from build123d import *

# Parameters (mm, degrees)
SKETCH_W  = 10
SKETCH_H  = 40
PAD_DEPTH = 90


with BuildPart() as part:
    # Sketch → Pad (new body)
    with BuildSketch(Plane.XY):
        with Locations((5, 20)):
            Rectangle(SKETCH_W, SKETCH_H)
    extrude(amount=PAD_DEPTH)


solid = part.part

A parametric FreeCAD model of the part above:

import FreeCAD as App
import Part
import Sketcher
from FreeCAD import Vector
Q = App.Units.Quantity


def add_polygon(sketch, points):
    """Adds a closed chain of lines whose ends are joined by coincident constraints."""
    first, n = sketch.GeometryCount, len(points)
    for a, b in zip(points, points[1:] + points[:1]):
        sketch.addGeometry(Part.LineSegment(App.Vector(*a, 0), App.Vector(*b, 0)), False)
    for i in range(n):
        sketch.addConstraint(Sketcher.Constraint("Coincident", first + i, 2, first + (i + 1) % n, 1))

doc = App.newDocument("Part")
body = doc.addObject("PartDesign::Body", "Body")

# Sketch on XY plane
sketch1 = body.newObject("Sketcher::SketchObject", "Sketch")
sketch1.AttachmentSupport = (doc.getObject("XY_Plane"), [""])
sketch1.MapMode = "FlatFace"
add_polygon(sketch1, [(0, 40), (0, 0), (10, 0), (10, 40)])  # lines 0-3
sketch1.addConstraint([
    Sketcher.Constraint("Vertical", 0),
    Sketcher.Constraint("Horizontal", 1),
    Sketcher.Constraint("Vertical", 2),
    Sketcher.Constraint("Horizontal", 3),
    Sketcher.Constraint("Coincident", 0, 2, -1, 1),
    Sketcher.Constraint("DistanceX", 1, 1, 1, 2, Q("10 mm")),
    Sketcher.Constraint("DistanceY", 0, 2, 0, 1, Q("40 mm")),
])
pad1 = body.newObject("PartDesign::Pad", "Pad")
pad1.Profile = sketch1
pad1.Length = 90

doc.recompute()
